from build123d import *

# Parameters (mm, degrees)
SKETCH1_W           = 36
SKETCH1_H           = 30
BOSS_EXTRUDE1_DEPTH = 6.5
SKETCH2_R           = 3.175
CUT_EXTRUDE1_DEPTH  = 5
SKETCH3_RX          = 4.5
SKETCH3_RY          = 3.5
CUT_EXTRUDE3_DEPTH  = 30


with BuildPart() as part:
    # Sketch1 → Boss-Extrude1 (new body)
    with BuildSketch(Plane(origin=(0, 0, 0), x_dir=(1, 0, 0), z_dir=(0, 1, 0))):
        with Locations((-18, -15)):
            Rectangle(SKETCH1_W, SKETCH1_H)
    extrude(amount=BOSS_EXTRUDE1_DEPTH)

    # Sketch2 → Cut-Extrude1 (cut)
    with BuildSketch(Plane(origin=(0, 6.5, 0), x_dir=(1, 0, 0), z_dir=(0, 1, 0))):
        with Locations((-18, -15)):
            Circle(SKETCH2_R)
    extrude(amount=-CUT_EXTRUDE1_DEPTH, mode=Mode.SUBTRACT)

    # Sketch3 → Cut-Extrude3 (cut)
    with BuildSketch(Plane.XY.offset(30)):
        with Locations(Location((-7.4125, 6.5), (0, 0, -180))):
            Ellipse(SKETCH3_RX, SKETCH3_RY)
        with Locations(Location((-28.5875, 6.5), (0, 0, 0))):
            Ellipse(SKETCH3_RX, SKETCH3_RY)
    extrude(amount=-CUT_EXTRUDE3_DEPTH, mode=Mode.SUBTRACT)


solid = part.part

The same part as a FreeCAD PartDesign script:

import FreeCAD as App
import Part
import Sketcher

V = App.Vector

doc = App.newDocument("Part")
body = doc.addObject("PartDesign::Body", "Body")

sketch1 = body.newObject("Sketcher::SketchObject", "Sketch")
sketch1.AttachmentSupport = (doc.getObject("XZ_Plane"), [""])
sketch1.MapMode = "FlatFace"
sketch1.addGeometry([
    Part.LineSegment(V(-36, 0, 0), V(-36, 30, 0)),
    Part.LineSegment(V(-36, 30, 0), V(0, 30, 0)),
    Part.LineSegment(V(0, 30, 0), V(0, 0, 0)),
    Part.LineSegment(V(0, 0, 0), V(-36, 0, 0)),
], False)
sketch1.addConstraint([
    Sketcher.Constraint("Coincident", 0, 2, 1, 1),
    Sketcher.Constraint("Coincident", 1, 2, 2, 1),
    Sketcher.Constraint("Coincident", 2, 2, 3, 1),
    Sketcher.Constraint("Coincident", 3, 2, 0, 1),
    Sketcher.Constraint("Vertical", 0),
    Sketcher.Constraint("Horizontal", 1),
    Sketcher.Constraint("Vertical", 2),
    Sketcher.Constraint("Horizontal", 3),
    Sketcher.Constraint("Coincident", 2, 2, -1, 1),
    Sketcher.Constraint("DistanceX", 1, 1, 1, 2, 36.0),
    Sketcher.Constraint("DistanceY", 0, 1, 0, 2, 30.0),
])
pad1 = body.newObject("PartDesign::Pad", "Pad")
pad1.Profile = sketch1
pad1.Length = 6.5
pad1.Reversed = True

sketch2 = body.newObject("Sketcher::SketchObject", "Sketch001")
sketch2.AttachmentSupport = (doc.getObject("XZ_Plane"), [""])
sketch2.MapMode = "FlatFace"
sketch2.AttachmentOffset = App.Placement(V(0, 0, -6.5), App.Rotation())
sketch2.addGeometry(Part.Circle(V(-18, 15, 0), V(0, 0, 1), 3.2), False)
sketch2.addConstraint([
    Sketcher.Constraint("Diameter", 0, 6.35),
    Sketcher.Constraint("DistanceX", 0, 3, -1, 1, 18.0),
    Sketcher.Constraint("DistanceY", -1, 1, 0, 3, 15.0),
])
pocket1 = body.newObject("PartDesign::Pocket", "Pocket")
pocket1.Profile = sketch2
pocket1.Length = 5
pocket1.Reversed = True

sketch3 = body.newObject("Sketcher::SketchObject", "Sketch002")
sketch3.AttachmentSupport = (doc.getObject("XY_Plane"), [""])
sketch3.MapMode = "FlatFace"
sketch3.AttachmentOffset = App.Placement(V(0, 0, 30), App.Rotation())
sketch3.addGeometry([
    Part.Ellipse(V(-11.9125, 6.5, 0), V(-7.4125, 3, 0), V(-7.4125, 6.5, 0)),
    Part.Ellipse(V(-24.0875, 6.5, 0), V(-28.5875, 10, 0), V(-28.5875, 6.5, 0)),
], False)
sketch3.addConstraint([
    Sketcher.Constraint("Block", 0),
    Sketcher.Constraint("Block", 1),
])
pocket2 = body.newObject("PartDesign::Pocket", "Pocket001")
pocket2.Profile = sketch3
pocket2.Length = 30

doc.recompute()
